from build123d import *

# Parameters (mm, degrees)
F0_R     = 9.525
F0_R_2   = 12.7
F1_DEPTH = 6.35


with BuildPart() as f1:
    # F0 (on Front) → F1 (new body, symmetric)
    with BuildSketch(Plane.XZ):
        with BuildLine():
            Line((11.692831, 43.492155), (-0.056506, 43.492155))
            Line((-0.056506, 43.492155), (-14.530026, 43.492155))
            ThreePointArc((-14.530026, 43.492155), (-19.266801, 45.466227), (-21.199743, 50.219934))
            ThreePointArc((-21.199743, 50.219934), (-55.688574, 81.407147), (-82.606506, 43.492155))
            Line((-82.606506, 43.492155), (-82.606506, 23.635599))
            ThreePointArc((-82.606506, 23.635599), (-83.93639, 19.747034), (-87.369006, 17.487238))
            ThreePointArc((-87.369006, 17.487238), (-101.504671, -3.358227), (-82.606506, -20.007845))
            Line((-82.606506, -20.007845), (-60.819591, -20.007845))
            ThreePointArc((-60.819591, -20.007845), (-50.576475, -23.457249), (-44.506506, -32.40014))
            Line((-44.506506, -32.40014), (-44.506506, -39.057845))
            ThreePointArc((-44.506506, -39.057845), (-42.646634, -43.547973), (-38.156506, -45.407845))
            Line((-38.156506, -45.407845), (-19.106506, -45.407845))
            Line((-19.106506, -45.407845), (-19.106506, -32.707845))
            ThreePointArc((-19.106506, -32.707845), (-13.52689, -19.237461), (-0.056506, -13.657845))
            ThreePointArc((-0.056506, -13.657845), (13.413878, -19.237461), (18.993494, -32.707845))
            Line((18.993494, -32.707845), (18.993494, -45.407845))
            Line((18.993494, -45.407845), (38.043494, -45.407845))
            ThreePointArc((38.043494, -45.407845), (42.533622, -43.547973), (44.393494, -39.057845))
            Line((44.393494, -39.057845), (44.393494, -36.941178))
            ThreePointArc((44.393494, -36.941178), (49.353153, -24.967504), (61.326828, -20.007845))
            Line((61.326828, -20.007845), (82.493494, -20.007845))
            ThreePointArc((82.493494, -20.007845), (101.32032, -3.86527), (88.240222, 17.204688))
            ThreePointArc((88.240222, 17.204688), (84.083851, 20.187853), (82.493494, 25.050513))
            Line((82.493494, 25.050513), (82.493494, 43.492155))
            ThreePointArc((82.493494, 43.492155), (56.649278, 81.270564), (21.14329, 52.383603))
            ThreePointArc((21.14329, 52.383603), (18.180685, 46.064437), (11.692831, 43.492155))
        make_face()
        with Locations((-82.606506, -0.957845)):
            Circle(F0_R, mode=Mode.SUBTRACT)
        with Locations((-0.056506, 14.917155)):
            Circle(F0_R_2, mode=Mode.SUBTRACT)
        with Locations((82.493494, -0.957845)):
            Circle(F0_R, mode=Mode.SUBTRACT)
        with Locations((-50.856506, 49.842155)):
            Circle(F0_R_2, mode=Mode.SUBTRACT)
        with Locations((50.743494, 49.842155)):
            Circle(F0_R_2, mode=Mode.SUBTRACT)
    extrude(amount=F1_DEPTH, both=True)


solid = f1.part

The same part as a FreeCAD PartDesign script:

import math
import FreeCAD as App
import Part
import Sketcher
from FreeCAD import Vector
Q = App.Units.Quantity

doc = App.newDocument("Part")
body = doc.addObject("PartDesign::Body", "Body")

# Sketch on XZ plane
sketch1 = body.newObject("Sketcher::SketchObject", "Sketch")
sketch1.AttachmentSupport = (doc.getObject("XZ_Plane"), [""])
sketch1.MapMode = "FlatFace"
sketch1.addGeometry([
    Part.LineSegment(Vector(11.7, 43.5, 0), Vector(-14.5, 43.5, 0)),  # 0
    Part.ArcOfCircle(Part.Circle(Vector(-14.5, 50.2, 0), Vector(0, 0, 1), 6.7), math.radians(180), math.radians(270)),  # 1
    Part.ArcOfCircle(Part.Circle(Vector(-52.3, 50.5, 0), Vector(0, 0, 1), 31.1), math.radians(0), math.radians(193)),  # 2
    Part.LineSegment(Vector(-82.6, 43.5, 0), Vector(-82.6, 23.6, 0)),  # 3
    Part.ArcOfCircle(Part.Circle(Vector(-89, 23.6, 0), Vector(0, 0, 1), 6.3), math.radians(-76), math.radians(0)),  # 4
    Part.ArcOfCircle(Part.Circle(Vector(-82.6, -1, 0), Vector(0, 0, 1), 19), math.radians(104), math.radians(270)),  # 5
    Part.LineSegment(Vector(-82.6, -20, 0), Vector(-60.8, -20, 0)),  # 6
    Part.ArcOfCircle(Part.Circle(Vector(-60.8, -36.9, 0), Vector(0, 0, 1), 16.9), math.radians(16), math.radians(90)),  # 7
    Part.LineSegment(Vector(-44.5, -32.4, 0), Vector(-44.5, -39.1, 0)),  # 8
    Part.ArcOfCircle(Part.Circle(Vector(-38.2, -39.1, 0), Vector(0, 0, 1), 6.4), math.radians(-180), math.radians(-90)),  # 9
    Part.LineSegment(Vector(-38.2, -45.4, 0), Vector(-19.1, -45.4, 0)),  # 10
    Part.LineSegment(Vector(-19.1, -45.4, 0), Vector(-19.1, -32.7, 0)),  # 11
    Part.ArcOfCircle(Part.Circle(Vector(-0.1, -32.7, 0), Vector(0, 0, 1), 19.1), math.radians(90), math.radians(180)),  # 12
    Part.ArcOfCircle(Part.Circle(Vector(-0.1, -32.7, 0), Vector(0, 0, 1), 19.1), math.radians(0), math.radians(90)),  # 13
    Part.LineSegment(Vector(19, -32.7, 0), Vector(19, -45.4, 0)),  # 14
    Part.LineSegment(Vector(19, -45.4, 0), Vector(38, -45.4, 0)),  # 15
    Part.ArcOfCircle(Part.Circle(Vector(38, -39.1, 0), Vector(0, 0, 1), 6.4), math.radians(-90), math.radians(0)),  # 16
    Part.LineSegment(Vector(44.4, -39.1, 0), Vector(44.4, -36.9, 0)),  # 17
    Part.ArcOfCircle(Part.Circle(Vector(61.3, -36.9, 0), Vector(0, 0, 1), 16.9), math.radians(90), math.radians(180)),  # 18
    Part.LineSegment(Vector(61.3, -20, 0), Vector(82.5, -20, 0)),  # 19
    Part.ArcOfCircle(Part.Circle(Vector(82.5, -1, 0), Vector(0, 0, 1), 19), math.radians(-90), math.radians(72)),  # 20
    Part.ArcOfCircle(Part.Circle(Vector(90.7, 25.1, 0), Vector(0, 0, 1), 8.2), math.radians(-180), math.radians(-108)),  # 21
    Part.LineSegment(Vector(82.5, 25.1, 0), Vector(82.5, 43.5, 0)),  # 22
    Part.ArcOfCircle(Part.Circle(Vector(52.2, 50.5, 0), Vector(0, 0, 1), 31.1), math.radians(-13), math.radians(177)),  # 23
    Part.ArcOfCircle(Part.Circle(Vector(11.7, 53, 0), Vector(0, 0, 1), 9.5), math.radians(-90), math.radians(-3)),  # 24
    Part.Circle(Vector(-82.6, -1, 0), Vector(0, 0, 1), 9.5),  # 25
    Part.Circle(Vector(-0.1, 14.9, 0), Vector(0, 0, 1), 12.7),  # 26
    Part.Circle(Vector(82.5, -1, 0), Vector(0, 0, 1), 9.5),  # 27
    Part.Circle(Vector(-50.9, 49.8, 0), Vector(0, 0, 1), 12.7),  # 28
    Part.Circle(Vector(50.7, 49.8, 0), Vector(0, 0, 1), 12.7),  # 29
], False)
sketch1.addConstraint([
    Sketcher.Constraint("Tangent", 0, 2, 1, 2),
    Sketcher.Constraint("Tangent", 1, 1, 2, 1),
    Sketcher.Constraint("Coincident", 2, 2, 3, 1),
    Sketcher.Constraint("Tangent", 3, 2, 4, 2),
    Sketcher.Constraint("Tangent", 4, 1, 5, 1),
    Sketcher.Constraint("Tangent", 5, 2, 6, 1),
    Sketcher.Constraint("Tangent", 6, 2, 7, 2),
    Sketcher.Constraint("Coincident", 7, 1, 8, 1),
    Sketcher.Constraint("Tangent", 8, 2, 9, 1),
    Sketcher.Constraint("Tangent", 9, 2, 10, 1),
    Sketcher.Constraint("Coincident", 10, 2, 11, 1),
    Sketcher.Constraint("Tangent", 11, 2, 12, 2),
    Sketcher.Constraint("Tangent", 12, 1, 13, 2),
    Sketcher.Constraint("Tangent", 13, 1, 14, 1),
    Sketcher.Constraint("Coincident", 14, 2, 15, 1),
    Sketcher.Constraint("Tangent", 15, 2, 16, 1),
    Sketcher.Constraint("Tangent", 16, 2, 17, 1),
    Sketcher.Constraint("Tangent", 17, 2, 18, 2),
    Sketcher.Constraint("Tangent", 18, 1, 19, 1),
    Sketcher.Constraint("Tangent", 19, 2, 20, 1),
    Sketcher.Constraint("Tangent", 20, 2, 21, 2),
    Sketcher.Constraint("Tangent", 21, 1, 22, 1),
    Sketcher.Constraint("Coincident", 22, 2, 23, 1),
    Sketcher.Constraint("Tangent", 23, 2, 24, 2),
    Sketcher.Constraint("Tangent", 24, 1, 0, 1),
    Sketcher.Constraint("Horizontal", 0),
    Sketcher.Constraint("Vertical", 3),
    Sketcher.Constraint("Horizontal", 6),
    Sketcher.Constraint("Vertical", 8),
    Sketcher.Constraint("Horizontal", 10),
    Sketcher.Constraint("Vertical", 11),
    Sketcher.Constraint("Vertical", 14),
    Sketcher.Constraint("Horizontal", 15),
    Sketcher.Constraint("Vertical", 17),
    Sketcher.Constraint("Horizontal", 19),
    Sketcher.Constraint("Vertical", 22),
    Sketcher.Constraint("Coincident", 25, 3, 5, 3),
    Sketcher.Constraint("Coincident", 27, 3, 20, 3),
    Sketcher.Constraint("Equal", 4, 9),
    Sketcher.Constraint("Equal", 5, 12),
    Sketcher.Constraint("Equal", 12, 13),
    Sketcher.Constraint("Equal", 9, 16),
    Sketcher.Constraint("Equal", 7, 18),
    Sketcher.Constraint("Equal", 13, 20),
    Sketcher.Constraint("Equal", 2, 23),
    Sketcher.Constraint("Equal", 25, 27),
    Sketcher.Constraint("Equal", 26, 28),
    Sketcher.Constraint("Equal", 28, 29),
    Sketcher.Constraint("Horizontal", 9, 3, 16, 3),
    Sketcher.Constraint("Horizontal", 7, 3, 18, 3),
    Sketcher.Constraint("Horizontal", 2, 3, 23, 3),
    Sketcher.Constraint("Horizontal", 28, 3, 29, 3),
    Sketcher.Constraint("Horizontal", 0, 2, 2, 2),
    Sketcher.Constraint("Horizontal", 2, 2, 22, 2),
    Sketcher.Constraint("Vertical", 13, 3, 26, 3),
    Sketcher.Constraint("Vertical", 25, 3, 2, 2),
    Sketcher.Constraint("Vertical", 26, 3, 12, 1),
    Sketcher.Constraint("Vertical", 19, 2, 21, 1),
    Sketcher.Constraint("Equal", 10, 15),
    Sketcher.Constraint("Diameter", 26, Q("1 in")),
    Sketcher.Constraint("Diameter", 25, Q("0.75 in")),
    Sketcher.Constraint("Radius", 4, Q("0.25 in")),
    Sketcher.Constraint("Radius", 5, Q("0.75 in")),
    Sketcher.Constraint("DistanceY", 11, 1, 11, 2, Q("0.5 in")),
    Sketcher.Constraint("DistanceX", 4, 3, 9, 3, Q("2 in")),
    Sketcher.Constraint("DistanceX", 9, 3, 16, 3, Q("3 in")),
    Sketcher.Constraint("DistanceY", 5, 3, 28, 3, Q("2 in")),
    Sketcher.Constraint("DistanceY", 9, 2, 6, 2, Q("1 in")),
    Sketcher.Constraint("DistanceX", 4, 3, 28, 3, Q("1.5 in")),
    Sketcher.Constraint("DistanceX", 17, 2, 19, 2, Q("1.5 in")),
    Sketcher.Constraint("DistanceX", 29, 3, 27, 3, Q("1.25 in")),
    Sketcher.Constraint("DistanceY", 0, 2, 28, 3, Q("0.25 in")),
    Sketcher.Constraint("DistanceY", 12, 3, 26, 3, Q("1.875 in")),
    Sketcher.Constraint("Radius", 1, 6.669967),
    Sketcher.Constraint("Radius", 2, 31.102636),
    Sketcher.Constraint("Radius", 7, 16.933333),
    Sketcher.Constraint("Radius", 21, 8.229194),
    Sketcher.Constraint("Radius", 24, 9.468033),
    Sketcher.Constraint("DistanceY", -1, 1, 4, 3, 23.635598),
    Sketcher.Constraint("DistanceX", -1, 1, 23, 3, 52.1882),
    Sketcher.Constraint("DistanceY", 18, 3, 23, 3, 87.430699),
    Sketcher.Constraint("DistanceX", 6, 1, 6, 2, 21.786915),
])
pad1 = body.newObject("PartDesign::Pad", "Pad")
pad1.Profile = sketch1
pad1.Length = Q("0.5 in")
pad1.Midplane = True

doc.recompute()
